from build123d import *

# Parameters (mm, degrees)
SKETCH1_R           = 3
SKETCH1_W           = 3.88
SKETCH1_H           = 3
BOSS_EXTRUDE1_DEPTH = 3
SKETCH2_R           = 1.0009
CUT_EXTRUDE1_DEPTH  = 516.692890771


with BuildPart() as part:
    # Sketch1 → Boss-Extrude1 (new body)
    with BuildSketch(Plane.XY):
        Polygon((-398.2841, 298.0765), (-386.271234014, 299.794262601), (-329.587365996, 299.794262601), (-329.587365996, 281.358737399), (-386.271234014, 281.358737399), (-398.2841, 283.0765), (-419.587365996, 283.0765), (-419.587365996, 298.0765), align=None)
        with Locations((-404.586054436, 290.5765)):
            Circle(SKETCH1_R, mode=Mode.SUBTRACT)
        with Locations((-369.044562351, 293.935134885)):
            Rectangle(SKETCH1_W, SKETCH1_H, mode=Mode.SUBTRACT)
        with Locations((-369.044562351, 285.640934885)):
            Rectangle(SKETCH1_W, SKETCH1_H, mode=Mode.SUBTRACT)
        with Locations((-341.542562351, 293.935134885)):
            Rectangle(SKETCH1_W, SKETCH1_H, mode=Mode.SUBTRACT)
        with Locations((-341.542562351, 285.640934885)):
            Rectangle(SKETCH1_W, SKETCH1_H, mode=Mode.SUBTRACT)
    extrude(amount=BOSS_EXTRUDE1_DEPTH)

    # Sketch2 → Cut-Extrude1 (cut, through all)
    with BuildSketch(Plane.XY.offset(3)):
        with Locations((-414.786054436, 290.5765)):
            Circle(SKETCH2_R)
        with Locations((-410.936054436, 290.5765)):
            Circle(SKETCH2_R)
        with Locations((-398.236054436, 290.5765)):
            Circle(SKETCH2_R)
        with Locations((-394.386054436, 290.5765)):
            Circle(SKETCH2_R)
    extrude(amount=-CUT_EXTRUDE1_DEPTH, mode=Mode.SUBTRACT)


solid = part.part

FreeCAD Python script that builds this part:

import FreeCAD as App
import Part
import Sketcher

V = App.Vector
Q = App.Units.Quantity

doc = App.newDocument("Part")
params = doc.addObject("Spreadsheet::Sheet", "Params")
for row, (alias, value) in enumerate([
    ("sketch1_diameter", "6 mm"),
    ("sketch1_height", "15 mm"),
    ("sketch1_height2", "3 mm"),
    ("sketch1_width", "3.88 mm"),
    ("pad1_length", "3 mm"),
], start=1):
    params.set(f"A{row}", alias)
    params.set(f"B{row}", "=" + value)
    params.setAlias(f"B{row}", alias)

body = doc.addObject("PartDesign::Body", "Body")

sketch1 = doc.addObject("Sketcher::SketchObject", "Sketch")
body.addObject(sketch1)
sketch1.AttachmentSupport = (doc.XY_Plane, [""])
sketch1.MapMode = "FlatFace"
sketch1.addGeometry([
    Part.LineSegment(V(-386.3, 299.8, 0), V(-398.3, 298.1, 0)),
    Part.LineSegment(V(-398.3, 298.1, 0), V(-419.6, 298.1, 0)),
    Part.LineSegment(V(-419.6, 298.1, 0), V(-419.6, 283.1, 0)),
    Part.LineSegment(V(-419.6, 283.1, 0), V(-398.3, 283.1, 0)),
    Part.LineSegment(V(-398.3, 283.1, 0), V(-386.3, 281.4, 0)),
    Part.LineSegment(V(-386.3, 281.4, 0), V(-329.6, 281.4, 0)),
    Part.LineSegment(V(-329.6, 281.4, 0), V(-329.6, 299.8, 0)),
    Part.LineSegment(V(-329.6, 299.8, 0), V(-386.3, 299.8, 0)),
    Part.LineSegment(V(-343.5, 284.1, 0), V(-343.5, 287.1, 0)),
    Part.LineSegment(V(-343.5, 287.1, 0), V(-339.6, 287.1, 0)),
    Part.LineSegment(V(-339.6, 287.1, 0), V(-339.6, 284.1, 0)),
    Part.LineSegment(V(-339.6, 284.1, 0), V(-343.5, 284.1, 0)),
    Part.LineSegment(V(-371, 284.1, 0), V(-371, 287.1, 0)),
    Part.LineSegment(V(-371, 287.1, 0), V(-367.1, 287.1, 0)),
    Part.LineSegment(V(-367.1, 287.1, 0), V(-367.1, 284.1, 0)),
    Part.LineSegment(V(-367.1, 284.1, 0), V(-371, 284.1, 0)),
    Part.LineSegment(V(-343.5, 292.4, 0), V(-343.5, 295.4, 0)),
    Part.LineSegment(V(-343.5, 295.4, 0), V(-339.6, 295.4, 0)),
    Part.LineSegment(V(-339.6, 295.4, 0), V(-339.6, 292.4, 0)),
    Part.LineSegment(V(-339.6, 292.4, 0), V(-343.5, 292.4, 0)),
    Part.LineSegment(V(-371, 292.4, 0), V(-371, 295.4, 0)),
    Part.LineSegment(V(-371, 295.4, 0), V(-367.1, 295.4, 0)),
    Part.LineSegment(V(-367.1, 295.4, 0), V(-367.1, 292.4, 0)),
    Part.LineSegment(V(-367.1, 292.4, 0), V(-371, 292.4, 0)),
    Part.Circle(V(-404.6, 290.6, 0), V(0, 0, 1), 3),
], False)
sketch1.addConstraint([
    Sketcher.Constraint("Coincident", 0, 2, 1, 1),
    Sketcher.Constraint("Coincident", 1, 2, 2, 1),
    Sketcher.Constraint("Coincident", 2, 2, 3, 1),
    Sketcher.Constraint("Coincident", 3, 2, 4, 1),
    Sketcher.Constraint("Coincident", 4, 2, 5, 1),
    Sketcher.Constraint("Coincident", 5, 2, 6, 1),
    Sketcher.Constraint("Coincident", 6, 2, 7, 1),
    Sketcher.Constraint("Coincident", 7, 2, 0, 1),
    Sketcher.Constraint("Coincident", 8, 2, 9, 1),
    Sketcher.Constraint("Coincident", 9, 2, 10, 1),
    Sketcher.Constraint("Coincident", 10, 2, 11, 1),
    Sketcher.Constraint("Coincident", 11, 2, 8, 1),
    Sketcher.Constraint("Coincident", 12, 2, 13, 1),
    Sketcher.Constraint("Coincident", 13, 2, 14, 1),
    Sketcher.Constraint("Coincident", 14, 2, 15, 1),
    Sketcher.Constraint("Coincident", 15, 2, 12, 1),
    Sketcher.Constraint("Coincident", 16, 2, 17, 1),
    Sketcher.Constraint("Coincident", 17, 2, 18, 1),
    Sketcher.Constraint("Coincident", 18, 2, 19, 1),
    Sketcher.Constraint("Coincident", 19, 2, 16, 1),
    Sketcher.Constraint("Coincident", 20, 2, 21, 1),
    Sketcher.Constraint("Coincident", 21, 2, 22, 1),
    Sketcher.Constraint("Coincident", 22, 2, 23, 1),
    Sketcher.Constraint("Coincident", 23, 2, 20, 1),
    Sketcher.Constraint("Horizontal", 1),
    Sketcher.Constraint("Vertical", 2),
    Sketcher.Constraint("Horizontal", 3),
    Sketcher.Constraint("Horizontal", 5),
    Sketcher.Constraint("Vertical", 6),
    Sketcher.Constraint("Horizontal", 7),
    Sketcher.Constraint("Vertical", 8),
    Sketcher.Constraint("Horizontal", 9),
    Sketcher.Constraint("Vertical", 10),
    Sketcher.Constraint("Horizontal", 11),
    Sketcher.Constraint("Vertical", 12),
    Sketcher.Constraint("Horizontal", 13),
    Sketcher.Constraint("Vertical", 14),
    Sketcher.Constraint("Horizontal", 15),
    Sketcher.Constraint("Vertical", 16),
    Sketcher.Constraint("Horizontal", 17),
    Sketcher.Constraint("Vertical", 18),
    Sketcher.Constraint("Horizontal", 19),
    Sketcher.Constraint("Vertical", 20),
    Sketcher.Constraint("Horizontal", 21),
    Sketcher.Constraint("Vertical", 22),
    Sketcher.Constraint("Horizontal", 23),
    Sketcher.Constraint("Horizontal", 9, 2, 12, 2),
    Sketcher.Constraint("Horizontal", 11, 2, 14, 2),
    Sketcher.Constraint("Horizontal", 17, 2, 20, 2),
    Sketcher.Constraint("Horizontal", 19, 2, 22, 2),
    Sketcher.Constraint("Vertical", 0, 2, 3, 2),
    Sketcher.Constraint("Vertical", 4, 2, 7, 2),
    Sketcher.Constraint("Vertical", 11, 2, 16, 2),
    Sketcher.Constraint("Vertical", 10, 2, 17, 2),
    Sketcher.Constraint("Vertical", 15, 2, 20, 2),
    Sketcher.Constraint("Vertical", 14, 2, 21, 2),
    Sketcher.Constraint("Equal", 11, 13),
    Sketcher.Constraint("Equal", 14, 16),
    Sketcher.Constraint("Equal", 0, 4),
    Sketcher.Constraint("Diameter", 24, Q("6 mm")),
    Sketcher.Constraint("DistanceY", 2, 2, 2, 1, Q("15 mm")),
    Sketcher.Constraint("DistanceY", 8, 1, 8, 2, Q("3 mm")),
    Sketcher.Constraint("DistanceX", 2, 2, 5, 2, Q("90 mm")),
    Sketcher.Constraint("DistanceX", 9, 1, 9, 2, Q("3.88 mm")),
    Sketcher.Constraint("DistanceY", 24, 3, 0, 2, Q("7.5 mm")),
    Sketcher.Constraint("DistanceX", 12, 2, 8, 2, Q("27.502 mm")),
    Sketcher.Constraint("DistanceX", 5, 1, 5, 2, Q("56.683868 mm")),
    Sketcher.Constraint("DistanceY", -1, 1, 24, 3, Q("290.5765 mm")),
    Sketcher.Constraint("DistanceX", 0, 2, -1, 1, Q("398.2841 mm")),
    Sketcher.Constraint("DistanceY", 8, 2, 16, 2, Q("8.2942 mm")),
    Sketcher.Constraint("Distance", 0, Q("12.135059 mm")),
    Sketcher.Constraint("DistanceX", 1, 2, 1, 1, Q("21.303266 mm")),
    Sketcher.Constraint("DistanceX", 1, 2, 24, 3, Q("15.001312 mm")),
    Sketcher.Constraint("DistanceX", 4, 2, 8, 2, Q("42.788672 mm")),
    Sketcher.Constraint("DistanceY", -1, 1, 8, 2, Q("287.140935 mm")),
])
sketch1.setExpression("Constraints[59]", "Params.sketch1_diameter")
sketch1.setExpression("Constraints[60]", "Params.sketch1_height")
sketch1.setExpression("Constraints[61]", "Params.sketch1_height2")
sketch1.setExpression("Constraints[63]", "Params.sketch1_width")
pad1 = doc.addObject("PartDesign::Pad", "Pad")
body.addObject(pad1)
pad1.Profile = sketch1
pad1.setExpression("Length", "Params.pad1_length")

sketch2 = doc.addObject("Sketcher::SketchObject", "Sketch001")
body.addObject(sketch2)
sketch2.AttachmentSupport = (doc.XY_Plane, [""])
sketch2.MapMode = "FlatFace"
sketch2.AttachmentOffset = App.Placement(V(0, 0, 3), App.Rotation())
sketch2.addGeometry([
    Part.Circle(V(-414.8, 290.6, 0), V(0, 0, 1), 1),
    Part.Circle(V(-410.9, 290.6, 0), V(0, 0, 1), 1),
    Part.Circle(V(-398.2, 290.6, 0), V(0, 0, 1), 1),
    Part.Circle(V(-394.4, 290.6, 0), V(0, 0, 1), 1),
], False)
sketch2.addConstraint([
    Sketcher.Constraint("Equal", 0, 1),
    Sketcher.Constraint("Equal", 1, 2),
    Sketcher.Constraint("Equal", 2, 3),
    Sketcher.Constraint("Horizontal", 0, 3, 1, 3),
    Sketcher.Constraint("Horizontal", 1, 3, 2, 3),
    Sketcher.Constraint("Horizontal", 2, 3, 3, 3),
    Sketcher.Constraint("Diameter", 0, Q("2.0018 mm")),
    Sketcher.Constraint("DistanceX", 1, 3, 2, 3, Q("12.7 mm")),
    Sketcher.Constraint("DistanceX", 0, 3, 3, 3, Q("20.4 mm")),
    Sketcher.Constraint("DistanceX", 0, 3, 1, 3, Q("3.85 mm")),
    Sketcher.Constraint("DistanceY", -1, 1, 0, 3, Q("290.5765 mm")),
    Sketcher.Constraint("DistanceX", 0, 3, -1, 1, Q("414.786054 mm")),
])
pocket1 = doc.addObject("PartDesign::Pocket", "Pocket")
body.addObject(pocket1)
pocket1.Profile = sketch2
pocket1.Type = "ThroughAll"

doc.recompute()
